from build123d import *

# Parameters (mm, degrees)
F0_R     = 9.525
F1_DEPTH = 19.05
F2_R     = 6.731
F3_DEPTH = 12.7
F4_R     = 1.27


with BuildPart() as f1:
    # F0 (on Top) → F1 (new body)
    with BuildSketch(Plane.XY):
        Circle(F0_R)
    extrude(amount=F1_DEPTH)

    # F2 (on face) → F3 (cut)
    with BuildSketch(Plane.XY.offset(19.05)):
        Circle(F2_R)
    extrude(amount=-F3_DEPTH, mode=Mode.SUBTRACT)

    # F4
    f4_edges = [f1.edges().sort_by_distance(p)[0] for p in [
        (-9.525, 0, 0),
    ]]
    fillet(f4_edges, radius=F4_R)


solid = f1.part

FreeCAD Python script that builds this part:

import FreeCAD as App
import Part
import Sketcher
from FreeCAD import Vector
Q = App.Units.Quantity


def edges_at(feature, points):
    """Names of the edges that pass closest to the given points."""
    edges = feature.Shape.Edges
    near = lambda p: min(range(len(edges)), key=lambda i: edges[i].distToShape(Part.Vertex(*p))[0])
    return sorted({f"Edge{near(p) + 1}" for p in points})

doc = App.newDocument("Part")
params = doc.addObject("Spreadsheet::Sheet", "Params")
for row, (alias, value) in enumerate([
    ("sketch1_diameter", "0.75 in"),
    ("pad1_length", "0.75 in"),
    ("sketch2_diameter", "0.53 in"),
    ("pocket1_length", "0.5 in"),
    ("fillet_radius", "0.05 in"),
], start=1):
    params.set(f"A{row}", alias)
    params.set(f"B{row}", "=" + value)
    params.setAlias(f"B{row}", alias)

body = doc.addObject("PartDesign::Body", "Body")

# Sketch on XY plane
sketch1 = body.newObject("Sketcher::SketchObject", "Sketch")
sketch1.AttachmentSupport = (doc.getObject("XY_Plane"), [""])
sketch1.MapMode = "FlatFace"
sketch1.addGeometry(Part.Circle(Vector(0, 0, 0), Vector(0, 0, 1), 10), False)
sketch1.addConstraint([
    Sketcher.Constraint("Coincident", 0, 3, -1, 1),
    Sketcher.Constraint("Diameter", 0, Q("0.75 in")),
])
sketch1.setExpression("Constraints[1]", "Params.sketch1_diameter")
pad1 = body.newObject("PartDesign::Pad", "Pad")
pad1.Profile = sketch1
pad1.setExpression("Length", "Params.pad1_length")

# Sketch on XY plane
sketch2 = body.newObject("Sketcher::SketchObject", "Sketch001")
sketch2.AttachmentSupport = (doc.getObject("XY_Plane"), [""])
sketch2.MapMode = "FlatFace"
sketch2.AttachmentOffset = App.Placement(Vector(0, 0, 0.75 * 25.4), App.Rotation())
sketch2.addGeometry(Part.Circle(Vector(0, 0, 0), Vector(0, 0, 1), 7), False)
sketch2.addConstraint([
    Sketcher.Constraint("Coincident", 0, 3, -1, 1),
    Sketcher.Constraint("Diameter", 0, Q("0.53 in")),
])
sketch2.setExpression("Constraints[1]", "Params.sketch2_diameter")
pocket1 = body.newObject("PartDesign::Pocket", "Pocket")
pocket1.Profile = sketch2
pocket1.setExpression("Length", "Params.pocket1_length")
doc.recompute()

fillet = body.newObject("PartDesign::Fillet", "Fillet")
fillet.Base = (pocket1, edges_at(pocket1, [(-9.525, 0, 0)]))
fillet.setExpression("Radius", "Params.fillet_radius")

doc.recompute()
